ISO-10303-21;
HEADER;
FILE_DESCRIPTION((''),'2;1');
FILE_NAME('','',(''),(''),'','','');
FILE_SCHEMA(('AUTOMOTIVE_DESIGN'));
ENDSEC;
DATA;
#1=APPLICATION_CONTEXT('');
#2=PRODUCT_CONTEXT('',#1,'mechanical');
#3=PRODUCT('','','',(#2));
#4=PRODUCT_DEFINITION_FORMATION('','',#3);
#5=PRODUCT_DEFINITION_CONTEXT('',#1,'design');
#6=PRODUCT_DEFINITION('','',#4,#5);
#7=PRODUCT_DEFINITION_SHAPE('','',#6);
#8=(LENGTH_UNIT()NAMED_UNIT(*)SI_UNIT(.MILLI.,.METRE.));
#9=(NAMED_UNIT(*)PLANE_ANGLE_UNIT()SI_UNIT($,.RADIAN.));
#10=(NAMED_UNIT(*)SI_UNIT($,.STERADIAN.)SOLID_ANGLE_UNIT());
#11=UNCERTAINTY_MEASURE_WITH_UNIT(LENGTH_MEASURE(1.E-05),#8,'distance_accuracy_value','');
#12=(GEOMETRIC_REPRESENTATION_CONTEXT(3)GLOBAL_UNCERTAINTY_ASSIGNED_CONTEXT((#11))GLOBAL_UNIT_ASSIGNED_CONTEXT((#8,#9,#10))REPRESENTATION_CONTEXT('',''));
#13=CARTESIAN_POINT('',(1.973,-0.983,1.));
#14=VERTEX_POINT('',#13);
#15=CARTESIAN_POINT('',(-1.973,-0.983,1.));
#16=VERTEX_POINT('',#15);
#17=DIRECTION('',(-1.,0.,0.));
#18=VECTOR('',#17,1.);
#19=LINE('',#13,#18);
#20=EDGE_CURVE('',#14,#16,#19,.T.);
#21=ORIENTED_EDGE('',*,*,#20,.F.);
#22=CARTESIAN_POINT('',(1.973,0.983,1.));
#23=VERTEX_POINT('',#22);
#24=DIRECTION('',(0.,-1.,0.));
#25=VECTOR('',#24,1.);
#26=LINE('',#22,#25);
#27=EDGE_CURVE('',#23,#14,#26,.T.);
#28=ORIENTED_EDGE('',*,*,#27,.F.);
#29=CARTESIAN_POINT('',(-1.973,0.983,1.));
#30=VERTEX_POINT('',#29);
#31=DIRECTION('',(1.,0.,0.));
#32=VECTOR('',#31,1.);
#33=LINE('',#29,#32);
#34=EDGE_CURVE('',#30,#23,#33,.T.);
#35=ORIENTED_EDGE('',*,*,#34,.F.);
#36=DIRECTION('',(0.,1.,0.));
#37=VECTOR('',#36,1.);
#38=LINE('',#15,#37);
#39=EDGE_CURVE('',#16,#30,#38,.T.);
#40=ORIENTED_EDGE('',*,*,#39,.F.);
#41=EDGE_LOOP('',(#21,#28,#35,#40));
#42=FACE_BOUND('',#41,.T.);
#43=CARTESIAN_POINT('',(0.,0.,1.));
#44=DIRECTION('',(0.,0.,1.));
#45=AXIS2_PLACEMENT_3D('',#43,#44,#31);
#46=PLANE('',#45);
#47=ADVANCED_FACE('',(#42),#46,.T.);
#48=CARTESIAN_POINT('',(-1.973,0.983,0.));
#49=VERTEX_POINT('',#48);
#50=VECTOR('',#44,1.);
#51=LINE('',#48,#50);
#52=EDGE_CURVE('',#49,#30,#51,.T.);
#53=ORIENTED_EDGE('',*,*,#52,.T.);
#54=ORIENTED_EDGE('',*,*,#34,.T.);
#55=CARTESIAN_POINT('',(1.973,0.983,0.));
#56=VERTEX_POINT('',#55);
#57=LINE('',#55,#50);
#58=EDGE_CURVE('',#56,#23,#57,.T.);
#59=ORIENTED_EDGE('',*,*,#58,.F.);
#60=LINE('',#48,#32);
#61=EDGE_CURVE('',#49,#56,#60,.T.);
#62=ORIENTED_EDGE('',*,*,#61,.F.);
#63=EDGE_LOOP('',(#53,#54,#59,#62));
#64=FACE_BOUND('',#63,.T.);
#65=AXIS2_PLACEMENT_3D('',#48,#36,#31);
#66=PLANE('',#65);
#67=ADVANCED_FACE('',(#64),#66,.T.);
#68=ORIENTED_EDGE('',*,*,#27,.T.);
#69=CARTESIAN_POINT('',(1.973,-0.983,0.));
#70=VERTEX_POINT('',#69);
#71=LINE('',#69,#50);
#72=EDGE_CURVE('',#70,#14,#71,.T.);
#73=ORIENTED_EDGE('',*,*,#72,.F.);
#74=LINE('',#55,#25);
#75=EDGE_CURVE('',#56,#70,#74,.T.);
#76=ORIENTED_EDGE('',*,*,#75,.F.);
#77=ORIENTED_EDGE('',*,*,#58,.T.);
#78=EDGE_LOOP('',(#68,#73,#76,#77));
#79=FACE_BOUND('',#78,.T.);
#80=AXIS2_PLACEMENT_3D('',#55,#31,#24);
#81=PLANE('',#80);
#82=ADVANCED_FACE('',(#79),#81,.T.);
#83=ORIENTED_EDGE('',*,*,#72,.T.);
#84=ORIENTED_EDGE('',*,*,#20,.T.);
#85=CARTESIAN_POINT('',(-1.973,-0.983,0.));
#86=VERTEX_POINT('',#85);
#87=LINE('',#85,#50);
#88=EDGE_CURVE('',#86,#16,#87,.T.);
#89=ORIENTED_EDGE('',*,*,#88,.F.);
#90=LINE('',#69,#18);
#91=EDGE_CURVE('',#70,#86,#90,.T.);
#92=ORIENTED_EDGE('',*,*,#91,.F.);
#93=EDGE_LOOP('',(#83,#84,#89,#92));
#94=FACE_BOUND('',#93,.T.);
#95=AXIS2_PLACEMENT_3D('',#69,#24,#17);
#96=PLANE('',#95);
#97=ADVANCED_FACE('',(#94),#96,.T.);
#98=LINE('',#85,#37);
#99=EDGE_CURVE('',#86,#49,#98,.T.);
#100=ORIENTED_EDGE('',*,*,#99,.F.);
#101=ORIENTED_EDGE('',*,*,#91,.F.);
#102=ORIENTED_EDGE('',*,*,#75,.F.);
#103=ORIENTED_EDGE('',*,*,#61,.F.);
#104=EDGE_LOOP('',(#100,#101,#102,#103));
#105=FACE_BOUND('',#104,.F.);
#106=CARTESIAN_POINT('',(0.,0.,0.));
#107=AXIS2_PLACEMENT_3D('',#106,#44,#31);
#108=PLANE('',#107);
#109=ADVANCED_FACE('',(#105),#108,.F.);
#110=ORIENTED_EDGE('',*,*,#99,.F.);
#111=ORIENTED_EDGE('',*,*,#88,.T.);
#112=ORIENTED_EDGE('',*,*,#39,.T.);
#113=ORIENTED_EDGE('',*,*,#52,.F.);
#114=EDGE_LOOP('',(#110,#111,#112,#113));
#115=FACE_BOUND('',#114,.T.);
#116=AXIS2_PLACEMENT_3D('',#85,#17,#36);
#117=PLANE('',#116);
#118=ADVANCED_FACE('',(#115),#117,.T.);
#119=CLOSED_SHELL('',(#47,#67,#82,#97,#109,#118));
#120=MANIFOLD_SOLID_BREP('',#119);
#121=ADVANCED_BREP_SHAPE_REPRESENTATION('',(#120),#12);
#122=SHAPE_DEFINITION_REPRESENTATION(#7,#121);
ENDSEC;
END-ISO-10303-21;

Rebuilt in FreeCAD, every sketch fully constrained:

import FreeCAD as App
import Part
import Sketcher
Q = App.Units.Quantity

doc = App.newDocument("Part")
body = doc.addObject("PartDesign::Body", "Body")

# Sketch on XY plane
sketch1 = doc.addObject("Sketcher::SketchObject", "Sketch")
body.addObject(sketch1)
sketch1.AttachmentSupport = (doc.XY_Plane, [""])
sketch1.MapMode = "FlatFace"
sketch1.addGeometry(Part.LineSegment(App.Vector(1.973, 0.983, 0), App.Vector(-1.973, 0.983, 0)), False)
sketch1.addGeometry(Part.LineSegment(App.Vector(-1.973, 0.983, 0), App.Vector(-1.973, -0.983, 0)), False)
sketch1.addGeometry(Part.LineSegment(App.Vector(-1.973, -0.983, 0), App.Vector(1.973, -0.983, 0)), False)
sketch1.addGeometry(Part.LineSegment(App.Vector(1.973, -0.983, 0), App.Vector(1.973, 0.983, 0)), False)
sketch1.addConstraint(Sketcher.Constraint("Coincident", 0, 2, 1, 1))
sketch1.addConstraint(Sketcher.Constraint("Coincident", 1, 2, 2, 1))
sketch1.addConstraint(Sketcher.Constraint("Coincident", 2, 2, 3, 1))
sketch1.addConstraint(Sketcher.Constraint("Coincident", 3, 2, 0, 1))
sketch1.addConstraint(Sketcher.Constraint("Horizontal", 0))
sketch1.addConstraint(Sketcher.Constraint("Vertical", 1))
sketch1.addConstraint(Sketcher.Constraint("Horizontal", 2))
sketch1.addConstraint(Sketcher.Constraint("Vertical", 3))
sketch1.addConstraint(Sketcher.Constraint("Symmetric", 0, 2, 2, 2, -1, 1))
sketch1.addConstraint(Sketcher.Constraint("DistanceX", 0, 2, 0, 1, Q("3.946 mm")))
sketch1.addConstraint(Sketcher.Constraint("DistanceY", 1, 2, 1, 1, Q("1.966 mm")))
pad1 = doc.addObject("PartDesign::Pad", "Pad")
body.addObject(pad1)
pad1.Profile = sketch1
pad1.Length = 1

doc.recompute()
